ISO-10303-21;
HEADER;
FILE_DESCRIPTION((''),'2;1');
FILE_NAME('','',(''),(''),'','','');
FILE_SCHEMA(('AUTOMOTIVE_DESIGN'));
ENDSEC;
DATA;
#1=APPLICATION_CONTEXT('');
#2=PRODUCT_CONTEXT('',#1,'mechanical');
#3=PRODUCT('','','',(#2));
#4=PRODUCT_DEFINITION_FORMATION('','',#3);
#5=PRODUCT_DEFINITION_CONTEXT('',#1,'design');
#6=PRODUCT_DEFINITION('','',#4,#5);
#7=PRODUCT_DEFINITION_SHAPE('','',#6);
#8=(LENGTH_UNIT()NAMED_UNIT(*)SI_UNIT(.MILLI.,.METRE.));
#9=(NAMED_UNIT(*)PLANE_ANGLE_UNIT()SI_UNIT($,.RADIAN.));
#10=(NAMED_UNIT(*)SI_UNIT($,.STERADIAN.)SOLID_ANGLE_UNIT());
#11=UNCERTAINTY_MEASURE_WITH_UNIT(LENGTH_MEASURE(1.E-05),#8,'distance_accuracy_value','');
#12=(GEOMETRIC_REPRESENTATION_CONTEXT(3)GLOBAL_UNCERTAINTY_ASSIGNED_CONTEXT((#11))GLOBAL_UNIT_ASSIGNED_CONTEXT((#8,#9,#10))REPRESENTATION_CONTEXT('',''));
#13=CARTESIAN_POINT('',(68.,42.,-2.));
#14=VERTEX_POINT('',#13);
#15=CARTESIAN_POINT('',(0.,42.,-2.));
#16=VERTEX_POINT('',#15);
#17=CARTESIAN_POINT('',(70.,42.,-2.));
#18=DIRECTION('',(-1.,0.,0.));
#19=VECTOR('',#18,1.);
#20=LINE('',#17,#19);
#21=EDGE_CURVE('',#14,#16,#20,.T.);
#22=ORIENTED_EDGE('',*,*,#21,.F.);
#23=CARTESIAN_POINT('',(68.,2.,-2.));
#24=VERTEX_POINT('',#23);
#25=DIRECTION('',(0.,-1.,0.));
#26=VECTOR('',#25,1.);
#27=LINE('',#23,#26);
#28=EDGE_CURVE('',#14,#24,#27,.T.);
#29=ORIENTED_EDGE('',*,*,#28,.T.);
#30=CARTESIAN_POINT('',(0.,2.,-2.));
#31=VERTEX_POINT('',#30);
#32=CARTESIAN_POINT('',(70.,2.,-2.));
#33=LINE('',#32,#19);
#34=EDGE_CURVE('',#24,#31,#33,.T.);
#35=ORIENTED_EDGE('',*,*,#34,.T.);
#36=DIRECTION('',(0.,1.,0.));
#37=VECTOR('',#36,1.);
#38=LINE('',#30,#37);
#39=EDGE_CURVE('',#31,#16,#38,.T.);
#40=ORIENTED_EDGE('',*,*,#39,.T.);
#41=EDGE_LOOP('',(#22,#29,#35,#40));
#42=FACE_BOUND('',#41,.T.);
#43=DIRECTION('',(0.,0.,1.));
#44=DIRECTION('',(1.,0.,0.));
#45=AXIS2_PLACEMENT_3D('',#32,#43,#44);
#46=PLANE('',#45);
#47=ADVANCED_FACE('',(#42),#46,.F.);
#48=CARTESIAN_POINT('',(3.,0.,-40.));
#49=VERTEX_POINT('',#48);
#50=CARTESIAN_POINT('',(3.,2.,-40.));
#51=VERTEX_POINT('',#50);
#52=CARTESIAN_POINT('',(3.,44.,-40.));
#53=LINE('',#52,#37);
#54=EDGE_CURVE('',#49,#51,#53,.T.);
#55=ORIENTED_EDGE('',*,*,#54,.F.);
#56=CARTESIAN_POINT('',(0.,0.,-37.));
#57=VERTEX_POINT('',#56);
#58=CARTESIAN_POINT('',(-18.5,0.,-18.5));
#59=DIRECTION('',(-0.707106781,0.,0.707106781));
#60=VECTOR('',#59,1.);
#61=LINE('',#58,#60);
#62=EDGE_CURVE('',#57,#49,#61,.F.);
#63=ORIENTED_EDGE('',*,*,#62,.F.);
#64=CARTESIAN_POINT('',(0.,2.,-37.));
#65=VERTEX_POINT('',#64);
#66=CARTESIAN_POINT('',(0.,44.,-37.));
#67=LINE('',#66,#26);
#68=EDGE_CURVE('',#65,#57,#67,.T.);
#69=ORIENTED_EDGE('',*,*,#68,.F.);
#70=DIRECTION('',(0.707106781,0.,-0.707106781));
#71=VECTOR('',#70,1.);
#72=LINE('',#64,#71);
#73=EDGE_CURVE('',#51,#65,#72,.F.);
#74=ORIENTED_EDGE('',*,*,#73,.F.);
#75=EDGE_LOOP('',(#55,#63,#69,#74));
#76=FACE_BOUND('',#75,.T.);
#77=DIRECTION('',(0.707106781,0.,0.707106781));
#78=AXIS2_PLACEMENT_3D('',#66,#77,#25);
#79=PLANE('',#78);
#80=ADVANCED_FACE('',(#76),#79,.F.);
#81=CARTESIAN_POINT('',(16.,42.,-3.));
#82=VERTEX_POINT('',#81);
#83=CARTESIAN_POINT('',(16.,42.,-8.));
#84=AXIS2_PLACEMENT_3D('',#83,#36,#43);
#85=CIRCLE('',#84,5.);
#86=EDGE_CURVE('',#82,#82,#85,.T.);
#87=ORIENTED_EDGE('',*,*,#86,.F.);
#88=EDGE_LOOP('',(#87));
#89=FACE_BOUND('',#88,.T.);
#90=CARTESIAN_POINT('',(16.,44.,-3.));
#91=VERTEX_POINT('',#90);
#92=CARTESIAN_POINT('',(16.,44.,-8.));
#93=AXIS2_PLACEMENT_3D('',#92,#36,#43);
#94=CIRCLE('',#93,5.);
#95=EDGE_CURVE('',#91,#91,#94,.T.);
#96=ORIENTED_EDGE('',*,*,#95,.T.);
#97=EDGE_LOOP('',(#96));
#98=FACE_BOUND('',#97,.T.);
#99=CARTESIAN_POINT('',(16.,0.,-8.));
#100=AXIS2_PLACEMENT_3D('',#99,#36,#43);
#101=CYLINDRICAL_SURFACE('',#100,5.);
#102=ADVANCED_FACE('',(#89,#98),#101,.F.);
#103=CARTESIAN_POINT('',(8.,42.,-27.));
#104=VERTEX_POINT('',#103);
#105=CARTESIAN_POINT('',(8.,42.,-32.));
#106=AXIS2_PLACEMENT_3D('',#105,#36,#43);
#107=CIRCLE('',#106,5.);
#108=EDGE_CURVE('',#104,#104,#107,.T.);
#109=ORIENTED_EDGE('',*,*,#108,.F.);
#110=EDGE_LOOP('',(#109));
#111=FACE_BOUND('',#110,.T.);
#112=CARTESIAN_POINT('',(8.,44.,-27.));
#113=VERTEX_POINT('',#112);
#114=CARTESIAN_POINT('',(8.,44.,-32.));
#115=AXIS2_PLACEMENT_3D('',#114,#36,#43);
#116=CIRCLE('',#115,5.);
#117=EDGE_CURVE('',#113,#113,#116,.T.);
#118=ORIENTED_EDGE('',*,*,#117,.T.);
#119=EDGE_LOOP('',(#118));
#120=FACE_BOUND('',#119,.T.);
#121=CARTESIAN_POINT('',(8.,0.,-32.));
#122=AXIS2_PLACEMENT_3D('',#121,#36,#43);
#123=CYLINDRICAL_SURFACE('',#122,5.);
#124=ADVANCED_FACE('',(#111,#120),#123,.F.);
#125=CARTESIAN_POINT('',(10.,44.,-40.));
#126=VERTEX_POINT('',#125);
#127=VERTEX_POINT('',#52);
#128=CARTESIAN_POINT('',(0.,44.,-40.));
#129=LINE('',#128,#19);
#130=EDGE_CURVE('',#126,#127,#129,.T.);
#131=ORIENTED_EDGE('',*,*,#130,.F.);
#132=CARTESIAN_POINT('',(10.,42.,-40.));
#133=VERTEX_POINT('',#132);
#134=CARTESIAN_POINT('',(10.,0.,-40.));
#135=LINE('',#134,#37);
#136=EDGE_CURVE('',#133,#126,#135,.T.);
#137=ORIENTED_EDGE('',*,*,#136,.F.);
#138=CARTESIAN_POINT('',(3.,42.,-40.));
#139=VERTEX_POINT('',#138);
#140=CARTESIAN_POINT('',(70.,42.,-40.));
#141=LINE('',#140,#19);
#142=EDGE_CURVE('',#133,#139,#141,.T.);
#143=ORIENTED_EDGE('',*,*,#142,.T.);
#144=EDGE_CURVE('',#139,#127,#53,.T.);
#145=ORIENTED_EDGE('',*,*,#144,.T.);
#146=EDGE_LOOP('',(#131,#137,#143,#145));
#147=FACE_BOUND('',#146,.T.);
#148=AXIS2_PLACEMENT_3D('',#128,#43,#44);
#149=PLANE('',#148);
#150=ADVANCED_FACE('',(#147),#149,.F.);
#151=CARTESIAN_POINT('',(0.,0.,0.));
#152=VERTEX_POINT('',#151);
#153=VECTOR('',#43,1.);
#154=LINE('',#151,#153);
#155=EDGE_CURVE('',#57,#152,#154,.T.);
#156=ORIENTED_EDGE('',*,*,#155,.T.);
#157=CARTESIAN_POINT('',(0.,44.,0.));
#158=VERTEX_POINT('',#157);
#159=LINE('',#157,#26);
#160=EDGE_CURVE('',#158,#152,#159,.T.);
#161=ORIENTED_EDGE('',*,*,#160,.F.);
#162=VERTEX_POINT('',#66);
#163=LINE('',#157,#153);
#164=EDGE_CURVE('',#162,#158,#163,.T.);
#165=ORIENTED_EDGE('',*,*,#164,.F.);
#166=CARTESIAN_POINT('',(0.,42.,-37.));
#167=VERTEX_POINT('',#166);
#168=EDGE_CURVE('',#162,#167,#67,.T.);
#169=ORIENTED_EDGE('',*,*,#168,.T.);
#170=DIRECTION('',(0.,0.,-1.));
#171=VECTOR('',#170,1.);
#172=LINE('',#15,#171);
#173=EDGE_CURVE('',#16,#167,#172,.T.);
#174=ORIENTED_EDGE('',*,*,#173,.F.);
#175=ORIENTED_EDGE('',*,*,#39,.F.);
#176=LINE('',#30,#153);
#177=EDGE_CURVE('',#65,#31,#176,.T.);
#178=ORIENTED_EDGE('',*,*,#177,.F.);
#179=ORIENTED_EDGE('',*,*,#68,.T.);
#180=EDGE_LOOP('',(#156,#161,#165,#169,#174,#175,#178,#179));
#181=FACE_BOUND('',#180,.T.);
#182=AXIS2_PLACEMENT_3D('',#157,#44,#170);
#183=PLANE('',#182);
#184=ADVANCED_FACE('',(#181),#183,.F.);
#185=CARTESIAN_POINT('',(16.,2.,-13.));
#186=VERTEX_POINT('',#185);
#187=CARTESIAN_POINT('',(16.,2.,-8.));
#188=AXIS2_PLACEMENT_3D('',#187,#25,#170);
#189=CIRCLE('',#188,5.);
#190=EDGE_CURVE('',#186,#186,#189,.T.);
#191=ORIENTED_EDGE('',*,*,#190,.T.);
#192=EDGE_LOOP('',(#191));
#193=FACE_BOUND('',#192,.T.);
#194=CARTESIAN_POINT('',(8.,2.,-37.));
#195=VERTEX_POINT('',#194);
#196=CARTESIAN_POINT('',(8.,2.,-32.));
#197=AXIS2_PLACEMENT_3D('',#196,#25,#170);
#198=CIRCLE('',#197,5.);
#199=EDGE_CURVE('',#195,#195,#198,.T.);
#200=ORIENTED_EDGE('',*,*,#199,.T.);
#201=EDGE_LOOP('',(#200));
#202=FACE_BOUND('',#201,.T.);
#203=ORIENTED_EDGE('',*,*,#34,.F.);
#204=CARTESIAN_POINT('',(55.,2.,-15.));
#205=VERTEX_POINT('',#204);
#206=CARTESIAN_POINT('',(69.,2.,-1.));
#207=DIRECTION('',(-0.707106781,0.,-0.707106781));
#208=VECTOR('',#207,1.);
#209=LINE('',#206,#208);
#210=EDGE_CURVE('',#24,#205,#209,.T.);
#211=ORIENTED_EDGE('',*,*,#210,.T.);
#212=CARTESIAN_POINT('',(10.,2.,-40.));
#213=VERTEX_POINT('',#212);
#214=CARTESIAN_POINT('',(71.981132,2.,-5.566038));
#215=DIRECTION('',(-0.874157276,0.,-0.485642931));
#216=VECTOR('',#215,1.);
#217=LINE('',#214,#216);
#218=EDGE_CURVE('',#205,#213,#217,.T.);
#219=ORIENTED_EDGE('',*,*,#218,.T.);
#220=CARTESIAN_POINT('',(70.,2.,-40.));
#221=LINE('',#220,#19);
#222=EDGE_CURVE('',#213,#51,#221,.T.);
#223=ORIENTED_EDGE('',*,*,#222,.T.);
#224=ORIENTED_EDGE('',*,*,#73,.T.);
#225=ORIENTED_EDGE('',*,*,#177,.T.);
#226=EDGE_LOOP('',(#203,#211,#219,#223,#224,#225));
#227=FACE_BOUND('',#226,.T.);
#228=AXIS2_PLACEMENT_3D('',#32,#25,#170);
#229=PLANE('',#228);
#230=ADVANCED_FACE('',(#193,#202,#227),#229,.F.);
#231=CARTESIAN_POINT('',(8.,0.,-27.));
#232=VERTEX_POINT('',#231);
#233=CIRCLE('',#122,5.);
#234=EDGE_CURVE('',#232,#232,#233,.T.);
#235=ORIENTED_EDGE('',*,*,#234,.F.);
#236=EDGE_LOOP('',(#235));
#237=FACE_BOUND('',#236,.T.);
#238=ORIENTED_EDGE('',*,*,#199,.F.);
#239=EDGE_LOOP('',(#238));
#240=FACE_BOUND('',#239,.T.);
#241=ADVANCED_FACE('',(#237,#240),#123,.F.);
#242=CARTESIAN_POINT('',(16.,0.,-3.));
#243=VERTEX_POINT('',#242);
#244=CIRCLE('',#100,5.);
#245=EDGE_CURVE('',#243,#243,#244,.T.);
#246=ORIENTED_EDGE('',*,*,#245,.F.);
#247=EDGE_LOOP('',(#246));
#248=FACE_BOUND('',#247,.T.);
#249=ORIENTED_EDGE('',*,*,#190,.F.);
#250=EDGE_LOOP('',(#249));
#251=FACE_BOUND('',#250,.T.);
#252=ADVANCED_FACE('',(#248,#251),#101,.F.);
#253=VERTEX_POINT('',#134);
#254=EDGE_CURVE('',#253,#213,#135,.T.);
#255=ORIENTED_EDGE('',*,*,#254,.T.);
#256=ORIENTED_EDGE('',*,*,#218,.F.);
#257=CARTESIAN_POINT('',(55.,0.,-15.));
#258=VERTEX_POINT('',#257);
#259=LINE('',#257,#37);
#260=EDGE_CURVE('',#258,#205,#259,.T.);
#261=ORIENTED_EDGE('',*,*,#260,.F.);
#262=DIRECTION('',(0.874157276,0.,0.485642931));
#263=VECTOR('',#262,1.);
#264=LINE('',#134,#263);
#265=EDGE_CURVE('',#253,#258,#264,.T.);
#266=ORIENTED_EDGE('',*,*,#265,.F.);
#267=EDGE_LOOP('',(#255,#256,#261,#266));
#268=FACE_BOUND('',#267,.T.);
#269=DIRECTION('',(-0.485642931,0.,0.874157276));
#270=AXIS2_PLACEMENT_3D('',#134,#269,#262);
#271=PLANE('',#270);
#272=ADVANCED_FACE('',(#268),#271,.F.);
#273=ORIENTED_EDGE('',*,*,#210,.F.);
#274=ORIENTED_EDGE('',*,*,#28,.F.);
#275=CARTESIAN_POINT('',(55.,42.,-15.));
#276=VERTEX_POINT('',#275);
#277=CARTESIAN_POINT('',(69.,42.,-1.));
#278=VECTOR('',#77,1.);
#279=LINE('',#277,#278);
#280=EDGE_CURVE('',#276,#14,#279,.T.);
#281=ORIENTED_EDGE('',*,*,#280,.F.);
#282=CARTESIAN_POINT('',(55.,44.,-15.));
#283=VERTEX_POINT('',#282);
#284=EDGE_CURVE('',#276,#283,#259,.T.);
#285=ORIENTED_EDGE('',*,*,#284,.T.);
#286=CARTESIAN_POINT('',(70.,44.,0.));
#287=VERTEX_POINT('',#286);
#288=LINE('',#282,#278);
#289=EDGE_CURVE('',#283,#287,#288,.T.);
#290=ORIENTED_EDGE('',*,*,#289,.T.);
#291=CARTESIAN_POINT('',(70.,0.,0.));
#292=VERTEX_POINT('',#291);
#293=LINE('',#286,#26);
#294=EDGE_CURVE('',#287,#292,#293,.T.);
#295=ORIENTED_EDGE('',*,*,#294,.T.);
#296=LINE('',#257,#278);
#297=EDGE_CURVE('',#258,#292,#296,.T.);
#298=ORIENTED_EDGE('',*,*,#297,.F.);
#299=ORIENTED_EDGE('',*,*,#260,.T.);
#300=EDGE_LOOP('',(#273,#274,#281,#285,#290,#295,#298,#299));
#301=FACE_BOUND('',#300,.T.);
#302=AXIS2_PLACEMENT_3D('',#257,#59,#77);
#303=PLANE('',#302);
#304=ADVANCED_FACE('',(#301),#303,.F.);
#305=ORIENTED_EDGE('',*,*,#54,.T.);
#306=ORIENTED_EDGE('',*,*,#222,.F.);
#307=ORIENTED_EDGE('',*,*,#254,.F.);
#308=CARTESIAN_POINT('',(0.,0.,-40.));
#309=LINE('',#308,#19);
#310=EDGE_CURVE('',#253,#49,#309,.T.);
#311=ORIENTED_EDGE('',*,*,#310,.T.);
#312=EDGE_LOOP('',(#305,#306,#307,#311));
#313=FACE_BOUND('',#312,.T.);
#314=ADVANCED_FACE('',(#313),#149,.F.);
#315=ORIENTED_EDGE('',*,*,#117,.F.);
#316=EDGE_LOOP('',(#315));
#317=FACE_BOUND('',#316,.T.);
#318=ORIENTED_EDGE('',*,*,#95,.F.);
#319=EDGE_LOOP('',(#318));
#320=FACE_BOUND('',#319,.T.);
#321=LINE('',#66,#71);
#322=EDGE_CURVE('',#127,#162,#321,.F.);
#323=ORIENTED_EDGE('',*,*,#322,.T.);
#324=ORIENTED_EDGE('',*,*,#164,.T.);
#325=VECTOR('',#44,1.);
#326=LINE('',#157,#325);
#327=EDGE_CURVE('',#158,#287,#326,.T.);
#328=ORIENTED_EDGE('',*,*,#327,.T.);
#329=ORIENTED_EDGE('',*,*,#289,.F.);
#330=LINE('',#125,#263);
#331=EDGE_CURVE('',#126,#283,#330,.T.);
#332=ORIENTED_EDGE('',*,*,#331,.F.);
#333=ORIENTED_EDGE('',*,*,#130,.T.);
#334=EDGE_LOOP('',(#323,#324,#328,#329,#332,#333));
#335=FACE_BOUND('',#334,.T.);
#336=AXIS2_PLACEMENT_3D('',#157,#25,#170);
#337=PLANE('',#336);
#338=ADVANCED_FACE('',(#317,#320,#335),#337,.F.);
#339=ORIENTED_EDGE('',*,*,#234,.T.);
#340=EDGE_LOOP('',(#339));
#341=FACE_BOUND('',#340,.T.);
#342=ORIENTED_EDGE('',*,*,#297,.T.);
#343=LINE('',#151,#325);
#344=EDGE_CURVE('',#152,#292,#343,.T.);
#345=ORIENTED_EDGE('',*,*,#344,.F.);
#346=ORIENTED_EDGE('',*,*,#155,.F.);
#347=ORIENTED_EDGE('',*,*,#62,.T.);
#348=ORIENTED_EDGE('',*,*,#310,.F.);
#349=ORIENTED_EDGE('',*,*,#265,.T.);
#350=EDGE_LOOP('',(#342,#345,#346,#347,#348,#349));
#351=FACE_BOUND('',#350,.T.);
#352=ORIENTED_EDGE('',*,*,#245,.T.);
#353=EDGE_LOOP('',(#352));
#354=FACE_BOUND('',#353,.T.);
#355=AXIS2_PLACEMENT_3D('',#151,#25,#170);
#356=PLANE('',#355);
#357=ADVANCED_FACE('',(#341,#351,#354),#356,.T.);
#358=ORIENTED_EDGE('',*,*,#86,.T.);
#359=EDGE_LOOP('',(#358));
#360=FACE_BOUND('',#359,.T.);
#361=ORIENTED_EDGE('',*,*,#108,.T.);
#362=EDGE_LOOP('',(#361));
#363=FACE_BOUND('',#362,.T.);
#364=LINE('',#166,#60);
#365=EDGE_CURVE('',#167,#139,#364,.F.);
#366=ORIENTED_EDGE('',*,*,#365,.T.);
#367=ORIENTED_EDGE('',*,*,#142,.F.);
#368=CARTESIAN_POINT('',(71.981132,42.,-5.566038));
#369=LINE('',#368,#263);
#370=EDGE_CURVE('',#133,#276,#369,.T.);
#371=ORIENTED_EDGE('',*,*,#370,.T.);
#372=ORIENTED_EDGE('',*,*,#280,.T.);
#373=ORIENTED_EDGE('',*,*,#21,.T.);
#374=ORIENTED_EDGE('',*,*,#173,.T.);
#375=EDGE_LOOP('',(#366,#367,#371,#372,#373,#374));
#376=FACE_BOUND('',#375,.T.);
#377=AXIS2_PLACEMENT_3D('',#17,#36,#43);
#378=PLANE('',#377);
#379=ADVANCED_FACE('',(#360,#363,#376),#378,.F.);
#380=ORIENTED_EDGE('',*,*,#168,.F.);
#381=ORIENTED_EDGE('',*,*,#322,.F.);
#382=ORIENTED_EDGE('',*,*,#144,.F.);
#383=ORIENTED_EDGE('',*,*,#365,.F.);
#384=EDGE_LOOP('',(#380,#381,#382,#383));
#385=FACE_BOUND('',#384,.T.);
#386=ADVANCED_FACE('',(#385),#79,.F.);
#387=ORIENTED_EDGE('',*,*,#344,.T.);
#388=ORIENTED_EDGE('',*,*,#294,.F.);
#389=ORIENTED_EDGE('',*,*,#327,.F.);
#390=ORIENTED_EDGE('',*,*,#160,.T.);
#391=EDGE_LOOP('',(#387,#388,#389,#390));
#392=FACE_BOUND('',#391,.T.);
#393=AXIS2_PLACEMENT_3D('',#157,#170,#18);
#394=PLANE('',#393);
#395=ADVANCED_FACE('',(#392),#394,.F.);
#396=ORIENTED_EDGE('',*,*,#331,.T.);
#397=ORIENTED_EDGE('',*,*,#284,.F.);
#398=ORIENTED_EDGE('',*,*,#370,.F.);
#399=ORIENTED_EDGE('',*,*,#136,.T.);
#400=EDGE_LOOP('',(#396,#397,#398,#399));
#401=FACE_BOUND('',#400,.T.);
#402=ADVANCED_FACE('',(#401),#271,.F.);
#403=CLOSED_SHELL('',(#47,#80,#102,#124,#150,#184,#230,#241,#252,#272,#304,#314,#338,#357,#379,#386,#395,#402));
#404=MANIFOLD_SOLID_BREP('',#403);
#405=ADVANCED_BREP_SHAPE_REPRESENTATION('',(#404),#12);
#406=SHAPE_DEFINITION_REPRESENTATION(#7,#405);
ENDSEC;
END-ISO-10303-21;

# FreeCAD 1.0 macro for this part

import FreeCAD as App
import Part
import Sketcher

V = App.Vector
Q = App.Units.Quantity


def edges_at(feature, points):
    """Names of the edges that pass closest to the given points."""
    edges = feature.Shape.Edges
    near = lambda p: min(range(len(edges)), key=lambda i: edges[i].distToShape(Part.Vertex(*p))[0])
    return sorted({f"Edge{near(p) + 1}" for p in points})


def add_polygon(sketch, points):
    """Adds a closed chain of lines whose ends are joined by coincident constraints."""
    first, n = sketch.GeometryCount, len(points)
    for a, b in zip(points, points[1:] + points[:1]):
        sketch.addGeometry(Part.LineSegment(App.Vector(*a, 0), App.Vector(*b, 0)), False)
    for i in range(n):
        sketch.addConstraint(Sketcher.Constraint("Coincident", first + i, 2, first + (i + 1) % n, 1))

doc = App.newDocument("Part")
body = doc.addObject("PartDesign::Body", "Body")

# Sketch on XZ plane
sketch1 = body.newObject("Sketcher::SketchObject", "Sketch")
sketch1.AttachmentSupport = (doc.getObject("XZ_Plane"), [""])
sketch1.MapMode = "FlatFace"
add_polygon(sketch1, [(0, -40), (0, 0), (70, 0), (70, -40)])  # lines 0-3
sketch1.addConstraint([
    Sketcher.Constraint("Vertical", 0),
    Sketcher.Constraint("Horizontal", 1),
    Sketcher.Constraint("Vertical", 2),
    Sketcher.Constraint("Horizontal", 3),
    Sketcher.Constraint("Coincident", 0, 2, -1, 1),
    Sketcher.Constraint("DistanceX", 1, 1, 1, 2, Q("70 mm")),
    Sketcher.Constraint("DistanceY", 0, 1, 0, 2, Q("40 mm")),
])
pad1 = body.newObject("PartDesign::Pad", "Pad")
pad1.Profile = sketch1
pad1.Length = 44
pad1.Reversed = True

# Sketch on YZ plane
sketch2 = body.newObject("Sketcher::SketchObject", "Sketch001")
sketch2.AttachmentSupport = (doc.getObject("YZ_Plane"), [""])
sketch2.MapMode = "FlatFace"
add_polygon(sketch2, [(42, -40), (2, -40), (2, -2), (42, -2)])  # lines 0-3
sketch2.addConstraint([
    Sketcher.Constraint("Horizontal", 0),
    Sketcher.Constraint("Vertical", 1),
    Sketcher.Constraint("Horizontal", 2),
    Sketcher.Constraint("Vertical", 3),
    Sketcher.Constraint("DistanceX", 0, 2, 0, 1, Q("40 mm")),
    Sketcher.Constraint("DistanceY", 1, 1, 1, 2, Q("38 mm")),
    Sketcher.Constraint("DistanceX", -1, 1, 0, 2, Q("2 mm")),
    Sketcher.Constraint("DistanceY", 0, 2, -1, 1, Q("40 mm")),
])
pocket1 = body.newObject("PartDesign::Pocket", "Pocket")
pocket1.Profile = sketch2
pocket1.Type = "ThroughAll"
pocket1.Reversed = True

# Sketch on XZ plane
sketch3 = body.newObject("Sketcher::SketchObject", "Sketch002")
sketch3.AttachmentSupport = (doc.getObject("XZ_Plane"), [""])
sketch3.MapMode = "FlatFace"
sketch3.AttachmentOffset = App.Placement(V(0, 0, -44), App.Rotation())
add_polygon(sketch3, [(10, -40), (55, -15), (70, 0), (70, -40)])  # lines 0-3
sketch3.addConstraint([
    Sketcher.Constraint("Vertical", 2),
    Sketcher.Constraint("Horizontal", 3),
    Sketcher.Constraint("PointOnObject", 1, 2, -1),
    Sketcher.Constraint("DistanceX", 3, 2, 3, 1, Q("60 mm")),
    Sketcher.Constraint("DistanceY", 2, 2, 2, 1, Q("40 mm")),
    Sketcher.Constraint("Angle", 1, Q("45 deg")),
    Sketcher.Constraint("DistanceX", -1, 1, 0, 2, Q("55 mm")),
    Sketcher.Constraint("DistanceY", 0, 2, -1, 1, Q("15 mm")),
])
pocket2 = body.newObject("PartDesign::Pocket", "Pocket001")
pocket2.Profile = sketch3
pocket2.Type = "ThroughAll"
pocket2.Reversed = True
doc.recompute()

chamfer = body.newObject("PartDesign::Chamfer", "Chamfer")
chamfer.Base = (pocket2, edges_at(pocket2, [(0, 1, -40), (0, 43, -40)]))
chamfer.Size = 3

# Sketch on XZ plane
sketch4 = body.newObject("Sketcher::SketchObject", "Sketch003")
sketch4.AttachmentSupport = (doc.getObject("XZ_Plane"), [""])
sketch4.MapMode = "FlatFace"
sketch4.AttachmentOffset = App.Placement(V(0, 0, -44), App.Rotation())
sketch4.addGeometry([
    Part.Circle(V(8, -32, 0), V(0, 0, 1), 5),
    Part.Circle(V(16, -8, 0), V(0, 0, 1), 5),
], False)
sketch4.addConstraint([
    Sketcher.Constraint("Equal", 0, 1),
    Sketcher.Constraint("Diameter", 0, Q("10 mm")),
    Sketcher.Constraint("DistanceX", -1, 1, 0, 3, Q("8 mm")),
    Sketcher.Constraint("DistanceY", 0, 3, -1, 1, Q("32 mm")),
    Sketcher.Constraint("DistanceX", -1, 1, 1, 3, Q("16 mm")),
    Sketcher.Constraint("DistanceY", 1, 3, -1, 1, Q("8 mm")),
])
pocket3 = body.newObject("PartDesign::Pocket", "Pocket002")
pocket3.Profile = sketch4
pocket3.Type = "ThroughAll"
pocket3.Reversed = True

doc.recompute()
